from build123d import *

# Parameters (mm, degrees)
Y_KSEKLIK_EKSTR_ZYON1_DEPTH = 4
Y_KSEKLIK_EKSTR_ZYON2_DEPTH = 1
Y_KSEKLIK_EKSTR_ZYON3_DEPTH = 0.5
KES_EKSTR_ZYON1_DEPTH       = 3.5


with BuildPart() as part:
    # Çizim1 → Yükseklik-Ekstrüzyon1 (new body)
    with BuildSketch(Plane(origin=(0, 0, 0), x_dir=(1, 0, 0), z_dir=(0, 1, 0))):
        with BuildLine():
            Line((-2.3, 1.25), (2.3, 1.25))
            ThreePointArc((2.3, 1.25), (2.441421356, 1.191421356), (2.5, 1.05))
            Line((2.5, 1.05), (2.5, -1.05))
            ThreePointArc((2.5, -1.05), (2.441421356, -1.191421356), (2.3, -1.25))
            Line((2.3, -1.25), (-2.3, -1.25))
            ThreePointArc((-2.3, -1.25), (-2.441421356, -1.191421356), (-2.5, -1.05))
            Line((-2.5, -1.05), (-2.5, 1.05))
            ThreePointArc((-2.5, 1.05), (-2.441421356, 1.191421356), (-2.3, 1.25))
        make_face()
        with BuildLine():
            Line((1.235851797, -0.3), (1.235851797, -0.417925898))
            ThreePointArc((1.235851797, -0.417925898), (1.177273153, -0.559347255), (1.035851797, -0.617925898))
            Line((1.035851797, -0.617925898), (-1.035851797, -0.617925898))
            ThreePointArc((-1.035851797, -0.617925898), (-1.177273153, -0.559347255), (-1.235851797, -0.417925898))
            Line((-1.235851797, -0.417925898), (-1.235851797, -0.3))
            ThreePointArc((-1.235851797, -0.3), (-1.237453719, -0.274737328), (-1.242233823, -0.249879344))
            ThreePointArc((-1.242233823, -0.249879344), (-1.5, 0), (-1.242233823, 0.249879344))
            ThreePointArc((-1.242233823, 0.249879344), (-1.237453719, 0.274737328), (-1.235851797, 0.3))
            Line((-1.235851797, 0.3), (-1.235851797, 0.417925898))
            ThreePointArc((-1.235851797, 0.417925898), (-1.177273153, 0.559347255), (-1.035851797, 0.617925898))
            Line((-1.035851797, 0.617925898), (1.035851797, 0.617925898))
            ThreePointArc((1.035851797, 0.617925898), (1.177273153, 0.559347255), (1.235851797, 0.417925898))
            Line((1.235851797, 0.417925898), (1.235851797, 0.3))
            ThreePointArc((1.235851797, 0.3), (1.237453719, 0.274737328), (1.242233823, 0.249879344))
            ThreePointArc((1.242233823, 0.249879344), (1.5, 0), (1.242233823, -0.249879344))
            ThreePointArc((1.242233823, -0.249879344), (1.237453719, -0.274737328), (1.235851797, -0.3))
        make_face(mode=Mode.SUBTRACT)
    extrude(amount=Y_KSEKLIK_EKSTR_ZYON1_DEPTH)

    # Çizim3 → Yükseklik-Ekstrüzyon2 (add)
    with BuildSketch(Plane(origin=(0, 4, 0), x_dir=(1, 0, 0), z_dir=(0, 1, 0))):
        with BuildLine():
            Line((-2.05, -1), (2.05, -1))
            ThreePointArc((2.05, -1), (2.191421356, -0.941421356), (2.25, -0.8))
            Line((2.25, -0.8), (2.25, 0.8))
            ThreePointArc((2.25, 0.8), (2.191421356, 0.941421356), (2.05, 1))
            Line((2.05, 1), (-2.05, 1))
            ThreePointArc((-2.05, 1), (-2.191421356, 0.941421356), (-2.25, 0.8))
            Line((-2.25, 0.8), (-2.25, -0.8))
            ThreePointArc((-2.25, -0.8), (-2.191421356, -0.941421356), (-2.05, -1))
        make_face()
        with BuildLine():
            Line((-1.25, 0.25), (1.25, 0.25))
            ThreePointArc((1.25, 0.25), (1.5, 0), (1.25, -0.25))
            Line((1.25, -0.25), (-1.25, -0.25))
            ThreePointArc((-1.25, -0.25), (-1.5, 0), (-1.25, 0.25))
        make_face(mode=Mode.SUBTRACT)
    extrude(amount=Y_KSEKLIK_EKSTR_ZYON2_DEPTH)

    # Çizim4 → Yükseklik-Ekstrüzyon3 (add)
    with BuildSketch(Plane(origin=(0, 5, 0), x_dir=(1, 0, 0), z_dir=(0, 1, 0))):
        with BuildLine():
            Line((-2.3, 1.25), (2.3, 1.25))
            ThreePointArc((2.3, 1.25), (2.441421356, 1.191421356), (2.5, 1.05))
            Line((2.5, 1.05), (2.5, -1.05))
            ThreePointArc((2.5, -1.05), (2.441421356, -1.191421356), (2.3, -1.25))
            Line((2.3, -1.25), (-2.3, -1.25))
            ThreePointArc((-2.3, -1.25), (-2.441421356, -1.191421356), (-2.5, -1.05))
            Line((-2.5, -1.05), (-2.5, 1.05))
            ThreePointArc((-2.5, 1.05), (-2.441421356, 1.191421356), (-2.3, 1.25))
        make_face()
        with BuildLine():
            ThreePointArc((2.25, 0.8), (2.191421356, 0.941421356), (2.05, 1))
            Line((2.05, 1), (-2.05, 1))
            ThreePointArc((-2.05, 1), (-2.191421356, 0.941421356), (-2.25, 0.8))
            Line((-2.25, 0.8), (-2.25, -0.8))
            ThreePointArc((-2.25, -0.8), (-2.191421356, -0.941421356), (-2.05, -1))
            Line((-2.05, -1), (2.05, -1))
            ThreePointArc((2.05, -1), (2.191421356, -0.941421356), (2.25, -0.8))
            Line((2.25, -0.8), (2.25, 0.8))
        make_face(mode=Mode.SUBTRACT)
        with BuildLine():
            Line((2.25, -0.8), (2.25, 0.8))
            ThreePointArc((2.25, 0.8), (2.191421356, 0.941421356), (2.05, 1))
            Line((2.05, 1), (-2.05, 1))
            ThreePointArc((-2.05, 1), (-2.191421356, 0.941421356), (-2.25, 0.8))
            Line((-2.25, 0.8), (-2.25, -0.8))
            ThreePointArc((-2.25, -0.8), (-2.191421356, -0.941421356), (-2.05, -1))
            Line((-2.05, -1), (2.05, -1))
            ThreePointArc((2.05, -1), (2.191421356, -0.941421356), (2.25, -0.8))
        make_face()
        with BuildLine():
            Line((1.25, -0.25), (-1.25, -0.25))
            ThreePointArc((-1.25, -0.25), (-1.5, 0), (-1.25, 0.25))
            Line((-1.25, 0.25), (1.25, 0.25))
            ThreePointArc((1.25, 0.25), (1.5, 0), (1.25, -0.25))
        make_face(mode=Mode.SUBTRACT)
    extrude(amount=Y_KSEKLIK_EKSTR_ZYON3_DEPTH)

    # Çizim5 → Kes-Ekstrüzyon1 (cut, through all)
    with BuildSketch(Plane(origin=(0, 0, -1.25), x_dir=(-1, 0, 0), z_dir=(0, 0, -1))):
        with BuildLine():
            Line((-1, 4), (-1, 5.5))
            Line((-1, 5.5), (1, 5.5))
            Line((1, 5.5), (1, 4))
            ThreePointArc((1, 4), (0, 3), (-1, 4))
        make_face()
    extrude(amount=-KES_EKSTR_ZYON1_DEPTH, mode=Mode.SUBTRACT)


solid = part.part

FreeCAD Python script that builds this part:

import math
import FreeCAD as App
import Part
import Sketcher

V = App.Vector

doc = App.newDocument("Part")
body = doc.addObject("PartDesign::Body", "Body")

sketch1 = body.newObject("Sketcher::SketchObject", "Sketch")
sketch1.AttachmentSupport = (doc.getObject("XZ_Plane"), [""])
sketch1.MapMode = "FlatFace"
sketch1.addGeometry([
    Part.LineSegment(V(2.3, -1.25, 0), V(-2.3, -1.25, 0)),
    Part.ArcOfCircle(Part.Circle(V(-2.3, -1.05, 0), V(0, 0, 1), 0.2), math.radians(-180), math.radians(-90)),
    Part.LineSegment(V(-2.5, -1.05, 0), V(-2.5, 1.05, 0)),
    Part.ArcOfCircle(Part.Circle(V(-2.3, 1.05, 0), V(0, 0, 1), 0.2), math.radians(90), math.radians(180)),
    Part.LineSegment(V(-2.3, 1.25, 0), V(2.3, 1.25, 0)),
    Part.ArcOfCircle(Part.Circle(V(2.3, 1.05, 0), V(0, 0, 1), 0.2), math.radians(0), math.radians(90)),
    Part.LineSegment(V(2.5, 1.05, 0), V(2.5, -1.05, 0)),
    Part.ArcOfCircle(Part.Circle(V(2.3, -1.05, 0), V(0, 0, 1), 0.2), math.radians(-90), math.radians(0)),
    Part.LineSegment(V(1.24, 0.3, 0), V(1.24, 0.42, 0)),
    Part.ArcOfCircle(Part.Circle(V(1.04, 0.42, 0), V(0, 0, 1), 0.2), math.radians(0), math.radians(90)),
    Part.LineSegment(V(1.04, 0.62, 0), V(-1.04, 0.62, 0)),
    Part.ArcOfCircle(Part.Circle(V(-1.04, 0.42, 0), V(0, 0, 1), 0.2), math.radians(90), math.radians(180)),
    Part.LineSegment(V(-1.24, 0.42, 0), V(-1.24, 0.3, 0)),
    Part.ArcOfCircle(Part.Circle(V(-1.44, 0.3, 0), V(0, 0, 1), 0.2), math.radians(-14.51), math.radians(0)),
    Part.ArcOfCircle(Part.Circle(V(-1.25, 0, 0), V(0, 0, 1), 0.25), math.radians(88), math.radians(272)),
    Part.ArcOfCircle(Part.Circle(V(-1.44, -0.3, 0), V(0, 0, 1), 0.2), math.radians(0), math.radians(14.51)),
    Part.LineSegment(V(-1.24, -0.3, 0), V(-1.24, -0.42, 0)),
    Part.ArcOfCircle(Part.Circle(V(-1.04, -0.42, 0), V(0, 0, 1), 0.2), math.radians(180), math.radians(270)),
    Part.LineSegment(V(-1.04, -0.62, 0), V(1.04, -0.62, 0)),
    Part.ArcOfCircle(Part.Circle(V(1.04, -0.42, 0), V(0, 0, 1), 0.2), math.radians(-90), math.radians(0)),
    Part.LineSegment(V(1.24, -0.42, 0), V(1.24, -0.3, 0)),
    Part.ArcOfCircle(Part.Circle(V(1.44, -0.3, 0), V(0, 0, 1), 0.2), math.radians(165.49), math.radians(180)),
    Part.ArcOfCircle(Part.Circle(V(1.25, 0, 0), V(0, 0, 1), 0.25), math.radians(-92), math.radians(92)),
    Part.ArcOfCircle(Part.Circle(V(1.44, 0.3, 0), V(0, 0, 1), 0.2), math.radians(-180), math.radians(-165.49)),
], False)
sketch1.addConstraint([
    Sketcher.Constraint("Tangent", 0, 2, 1, 2),
    Sketcher.Constraint("Tangent", 1, 1, 2, 1),
    Sketcher.Constraint("Tangent", 2, 2, 3, 2),
    Sketcher.Constraint("Tangent", 3, 1, 4, 1),
    Sketcher.Constraint("Tangent", 4, 2, 5, 2),
    Sketcher.Constraint("Tangent", 5, 1, 6, 1),
    Sketcher.Constraint("Tangent", 6, 2, 7, 2),
    Sketcher.Constraint("Tangent", 7, 1, 0, 1),
    Sketcher.Constraint("Tangent", 8, 2, 9, 1),
    Sketcher.Constraint("Tangent", 9, 2, 10, 1),
    Sketcher.Constraint("Tangent", 10, 2, 11, 1),
    Sketcher.Constraint("Tangent", 11, 2, 12, 1),
    Sketcher.Constraint("Tangent", 12, 2, 13, 2),
    Sketcher.Constraint("Coincident", 13, 1, 14, 1),
    Sketcher.Constraint("Coincident", 14, 2, 15, 2),
    Sketcher.Constraint("Tangent", 15, 1, 16, 1),
    Sketcher.Constraint("Tangent", 16, 2, 17, 1),
    Sketcher.Constraint("Tangent", 17, 2, 18, 1),
    Sketcher.Constraint("Tangent", 18, 2, 19, 1),
    Sketcher.Constraint("Tangent", 19, 2, 20, 1),
    Sketcher.Constraint("Tangent", 20, 2, 21, 2),
    Sketcher.Constraint("Coincident", 21, 1, 22, 1),
    Sketcher.Constraint("Coincident", 22, 2, 23, 2),
    Sketcher.Constraint("Tangent", 23, 1, 8, 1),
    Sketcher.Constraint("Horizontal", 0),
    Sketcher.Constraint("Vertical", 2),
    Sketcher.Constraint("Horizontal", 4),
    Sketcher.Constraint("Vertical", 6),
    Sketcher.Constraint("Vertical", 8),
    Sketcher.Constraint("Horizontal", 10),
    Sketcher.Constraint("Vertical", 12),
    Sketcher.Constraint("Vertical", 16),
    Sketcher.Constraint("Horizontal", 18),
    Sketcher.Constraint("Vertical", 20),
    Sketcher.Constraint("Equal", 1, 3),
    Sketcher.Constraint("Equal", 3, 5),
    Sketcher.Constraint("Equal", 5, 7),
    Sketcher.Constraint("Equal", 7, 9),
    Sketcher.Constraint("Equal", 9, 11),
    Sketcher.Constraint("Equal", 11, 13),
    Sketcher.Constraint("Equal", 13, 15),
    Sketcher.Constraint("Equal", 15, 17),
    Sketcher.Constraint("Equal", 17, 19),
    Sketcher.Constraint("Equal", 19, 21),
    Sketcher.Constraint("Equal", 14, 22),
    Sketcher.Constraint("Equal", 21, 23),
    Sketcher.Constraint("Symmetric", 1, 3, 5, 3, -1, 1),
    Sketcher.Constraint("Symmetric", 9, 3, 17, 3, -1, 1),
    Sketcher.Constraint("Symmetric", 13, 3, 21, 3, -1, 1),
    Sketcher.Constraint("Symmetric", 14, 3, 22, 3, -1, 1),
    Sketcher.Constraint("Symmetric", 15, 3, 21, 3, -2),
    Sketcher.Constraint("Symmetric", 13, 1, 22, 2, -2),
    Sketcher.Constraint("Radius", 1, 0.2),
    Sketcher.Constraint("Radius", 14, 0.25),
    Sketcher.Constraint("DistanceX", 0, 2, 0, 1, 4.6),
    Sketcher.Constraint("DistanceY", 2, 1, 2, 2, 2.1),
    Sketcher.Constraint("DistanceY", -1, 1, 13, 3, 0.3),
    Sketcher.Constraint("DistanceX", 14, 3, -1, 1, 1.25),
    Sketcher.Constraint("DistanceX", 10, 2, 10, 1, 2.071704),
    Sketcher.Constraint("DistanceY", 8, 1, 8, 2, 0.117926),
])
pad1 = body.newObject("PartDesign::Pad", "Pad")
pad1.Profile = sketch1
pad1.Length = 4
pad1.Reversed = True

sketch2 = body.newObject("Sketcher::SketchObject", "Sketch001")
sketch2.AttachmentSupport = (doc.getObject("XZ_Plane"), [""])
sketch2.MapMode = "FlatFace"
sketch2.AttachmentOffset = App.Placement(V(0, 0, -4), App.Rotation())
sketch2.addGeometry([
    Part.LineSegment(V(-2.05, 1, 0), V(2.05, 1, 0)),
    Part.ArcOfCircle(Part.Circle(V(2.05, 0.8, 0), V(0, 0, 1), 0.2), math.radians(0), math.radians(90)),
    Part.LineSegment(V(2.25, 0.8, 0), V(2.25, -0.8, 0)),
    Part.ArcOfCircle(Part.Circle(V(2.05, -0.8, 0), V(0, 0, 1), 0.2), math.radians(-90), math.radians(0)),
    Part.LineSegment(V(2.05, -1, 0), V(-2.05, -1, 0)),
    Part.ArcOfCircle(Part.Circle(V(-2.05, -0.8, 0), V(0, 0, 1), 0.2), math.radians(-180), math.radians(-90)),
    Part.LineSegment(V(-2.25, -0.8, 0), V(-2.25, 0.8, 0)),
    Part.ArcOfCircle(Part.Circle(V(-2.05, 0.8, 0), V(0, 0, 1), 0.2), math.radians(90), math.radians(180)),
    Part.ArcOfCircle(Part.Circle(V(-1.25, 0, 0), V(0, 0, 1), 0.25), math.radians(90), math.radians(270)),
    Part.LineSegment(V(-1.25, -0.25, 0), V(1.25, -0.25, 0)),
    Part.ArcOfCircle(Part.Circle(V(1.25, 0, 0), V(0, 0, 1), 0.25), math.radians(-90), math.radians(90)),
    Part.LineSegment(V(1.25, 0.25, 0), V(-1.25, 0.25, 0)),
], False)
sketch2.addConstraint([
    Sketcher.Constraint("Tangent", 0, 2, 1, 2),
    Sketcher.Constraint("Tangent", 1, 1, 2, 1),
    Sketcher.Constraint("Tangent", 2, 2, 3, 2),
    Sketcher.Constraint("Tangent", 3, 1, 4, 1),
    Sketcher.Constraint("Tangent", 4, 2, 5, 2),
    Sketcher.Constraint("Tangent", 5, 1, 6, 1),
    Sketcher.Constraint("Tangent", 6, 2, 7, 2),
    Sketcher.Constraint("Tangent", 7, 1, 0, 1),
    Sketcher.Constraint("Tangent", 8, 2, 9, 1),
    Sketcher.Constraint("Tangent", 9, 2, 10, 1),
    Sketcher.Constraint("Tangent", 10, 2, 11, 1),
    Sketcher.Constraint("Tangent", 11, 2, 8, 1),
    Sketcher.Constraint("Horizontal", 0),
    Sketcher.Constraint("Vertical", 2),
    Sketcher.Constraint("Horizontal", 4),
    Sketcher.Constraint("Vertical", 6),
    Sketcher.Constraint("Horizontal", 9),
    Sketcher.Constraint("Horizontal", 11),
    Sketcher.Constraint("Equal", 1, 3),
    Sketcher.Constraint("Equal", 3, 5),
    Sketcher.Constraint("Equal", 5, 7),
    Sketcher.Constraint("Symmetric", 1, 3, 5, 3, -1, 1),
    Sketcher.Constraint("Symmetric", 8, 3, 10, 3, -1, 1),
    Sketcher.Constraint("Radius", 1, 0.2),
    Sketcher.Constraint("Radius", 8, 0.25),
    Sketcher.Constraint("DistanceX", 0, 1, 0, 2, 4.1),
    Sketcher.Constraint("DistanceX", 9, 1, 9, 2, 2.5),
    Sketcher.Constraint("DistanceY", 2, 2, 2, 1, 1.6),
])
pad2 = body.newObject("PartDesign::Pad", "Pad001")
pad2.Profile = sketch2
pad2.Length = 1
pad2.Reversed = True

sketch3 = body.newObject("Sketcher::SketchObject", "Sketch002")
sketch3.AttachmentSupport = (doc.getObject("XZ_Plane"), [""])
sketch3.MapMode = "FlatFace"
sketch3.AttachmentOffset = App.Placement(V(0, 0, -5), App.Rotation())
sketch3.addGeometry([
    Part.LineSegment(V(2.3, -1.25, 0), V(-2.3, -1.25, 0)),
    Part.ArcOfCircle(Part.Circle(V(-2.3, -1.05, 0), V(0, 0, 1), 0.2), math.radians(-180), math.radians(-90)),
    Part.LineSegment(V(-2.5, -1.05, 0), V(-2.5, 1.05, 0)),
    Part.ArcOfCircle(Part.Circle(V(-2.3, 1.05, 0), V(0, 0, 1), 0.2), math.radians(90), math.radians(180)),
    Part.LineSegment(V(-2.3, 1.25, 0), V(2.3, 1.25, 0)),
    Part.ArcOfCircle(Part.Circle(V(2.3, 1.05, 0), V(0, 0, 1), 0.2), math.radians(0), math.radians(90)),
    Part.LineSegment(V(2.5, 1.05, 0), V(2.5, -1.05, 0)),
    Part.ArcOfCircle(Part.Circle(V(2.3, -1.05, 0), V(0, 0, 1), 0.2), math.radians(-90), math.radians(0)),
    Part.LineSegment(V(1.25, 0.25, 0), V(-1.25, 0.25, 0)),
    Part.ArcOfCircle(Part.Circle(V(-1.25, 0, 0), V(0, 0, 1), 0.25), math.radians(90), math.radians(270)),
    Part.LineSegment(V(-1.25, -0.25, 0), V(1.25, -0.25, 0)),
    Part.ArcOfCircle(Part.Circle(V(1.25, 0, 0), V(0, 0, 1), 0.25), math.radians(-90), math.radians(90)),
], False)
sketch3.addConstraint([
    Sketcher.Constraint("Tangent", 0, 2, 1, 2),
    Sketcher.Constraint("Tangent", 1, 1, 2, 1),
    Sketcher.Constraint("Tangent", 2, 2, 3, 2),
    Sketcher.Constraint("Tangent", 3, 1, 4, 1),
    Sketcher.Constraint("Tangent", 4, 2, 5, 2),
    Sketcher.Constraint("Tangent", 5, 1, 6, 1),
    Sketcher.Constraint("Tangent", 6, 2, 7, 2),
    Sketcher.Constraint("Tangent", 7, 1, 0, 1),
    Sketcher.Constraint("Tangent", 8, 2, 9, 1),
    Sketcher.Constraint("Tangent", 9, 2, 10, 1),
    Sketcher.Constraint("Tangent", 10, 2, 11, 1),
    Sketcher.Constraint("Tangent", 11, 2, 8, 1),
    Sketcher.Constraint("Horizontal", 0),
    Sketcher.Constraint("Vertical", 2),
    Sketcher.Constraint("Horizontal", 4),
    Sketcher.Constraint("Vertical", 6),
    Sketcher.Constraint("Horizontal", 8),
    Sketcher.Constraint("Horizontal", 10),
    Sketcher.Constraint("Equal", 1, 3),
    Sketcher.Constraint("Equal", 3, 5),
    Sketcher.Constraint("Equal", 5, 7),
    Sketcher.Constraint("Symmetric", 1, 3, 5, 3, -1, 1),
    Sketcher.Constraint("Symmetric", 9, 3, 11, 3, -1, 1),
    Sketcher.Constraint("Radius", 1, 0.2),
    Sketcher.Constraint("Radius", 9, 0.25),
    Sketcher.Constraint("DistanceX", 0, 2, 0, 1, 4.6),
    Sketcher.Constraint("DistanceX", 8, 2, 8, 1, 2.5),
    Sketcher.Constraint("DistanceY", 2, 1, 2, 2, 2.1),
])
pad3 = body.newObject("PartDesign::Pad", "Pad002")
pad3.Profile = sketch3
pad3.Length = 0.5
pad3.Reversed = True

sketch4 = body.newObject("Sketcher::SketchObject", "Sketch003")
sketch4.AttachmentSupport = (doc.getObject("XY_Plane"), [""])
sketch4.MapMode = "FlatFace"
sketch4.AttachmentOffset = App.Placement(V(0, 0, -1.25), App.Rotation())
sketch4.addGeometry([
    Part.LineSegment(V(1, 5.5, 0), V(1, 4, 0)),
    Part.ArcOfCircle(Part.Circle(V(0, 4, 0), V(0, 0, 1), 1), math.radians(180), math.radians(360)),
    Part.LineSegment(V(-1, 4, 0), V(-1, 5.5, 0)),
    Part.LineSegment(V(-1, 5.5, 0), V(1, 5.5, 0)),
], False)
sketch4.addConstraint([
    Sketcher.Constraint("Tangent", 0, 2, 1, 2),
    Sketcher.Constraint("Tangent", 1, 1, 2, 1),
    Sketcher.Constraint("Coincident", 2, 2, 3, 1),
    Sketcher.Constraint("Coincident", 3, 2, 0, 1),
    Sketcher.Constraint("Vertical", 0),
    Sketcher.Constraint("Vertical", 2),
    Sketcher.Constraint("Horizontal", 3),
    Sketcher.Constraint("PointOnObject", 1, 3, -2),
    Sketcher.Constraint("Radius", 1, 1.0),
    Sketcher.Constraint("DistanceY", 0, 2, 0, 1, 1.5),
    Sketcher.Constraint("DistanceY", -1, 1, 1, 3, 4.0),
])
pocket1 = body.newObject("PartDesign::Pocket", "Pocket")
pocket1.Profile = sketch4
pocket1.Type = "ThroughAll"
pocket1.Reversed = True

doc.recompute()
